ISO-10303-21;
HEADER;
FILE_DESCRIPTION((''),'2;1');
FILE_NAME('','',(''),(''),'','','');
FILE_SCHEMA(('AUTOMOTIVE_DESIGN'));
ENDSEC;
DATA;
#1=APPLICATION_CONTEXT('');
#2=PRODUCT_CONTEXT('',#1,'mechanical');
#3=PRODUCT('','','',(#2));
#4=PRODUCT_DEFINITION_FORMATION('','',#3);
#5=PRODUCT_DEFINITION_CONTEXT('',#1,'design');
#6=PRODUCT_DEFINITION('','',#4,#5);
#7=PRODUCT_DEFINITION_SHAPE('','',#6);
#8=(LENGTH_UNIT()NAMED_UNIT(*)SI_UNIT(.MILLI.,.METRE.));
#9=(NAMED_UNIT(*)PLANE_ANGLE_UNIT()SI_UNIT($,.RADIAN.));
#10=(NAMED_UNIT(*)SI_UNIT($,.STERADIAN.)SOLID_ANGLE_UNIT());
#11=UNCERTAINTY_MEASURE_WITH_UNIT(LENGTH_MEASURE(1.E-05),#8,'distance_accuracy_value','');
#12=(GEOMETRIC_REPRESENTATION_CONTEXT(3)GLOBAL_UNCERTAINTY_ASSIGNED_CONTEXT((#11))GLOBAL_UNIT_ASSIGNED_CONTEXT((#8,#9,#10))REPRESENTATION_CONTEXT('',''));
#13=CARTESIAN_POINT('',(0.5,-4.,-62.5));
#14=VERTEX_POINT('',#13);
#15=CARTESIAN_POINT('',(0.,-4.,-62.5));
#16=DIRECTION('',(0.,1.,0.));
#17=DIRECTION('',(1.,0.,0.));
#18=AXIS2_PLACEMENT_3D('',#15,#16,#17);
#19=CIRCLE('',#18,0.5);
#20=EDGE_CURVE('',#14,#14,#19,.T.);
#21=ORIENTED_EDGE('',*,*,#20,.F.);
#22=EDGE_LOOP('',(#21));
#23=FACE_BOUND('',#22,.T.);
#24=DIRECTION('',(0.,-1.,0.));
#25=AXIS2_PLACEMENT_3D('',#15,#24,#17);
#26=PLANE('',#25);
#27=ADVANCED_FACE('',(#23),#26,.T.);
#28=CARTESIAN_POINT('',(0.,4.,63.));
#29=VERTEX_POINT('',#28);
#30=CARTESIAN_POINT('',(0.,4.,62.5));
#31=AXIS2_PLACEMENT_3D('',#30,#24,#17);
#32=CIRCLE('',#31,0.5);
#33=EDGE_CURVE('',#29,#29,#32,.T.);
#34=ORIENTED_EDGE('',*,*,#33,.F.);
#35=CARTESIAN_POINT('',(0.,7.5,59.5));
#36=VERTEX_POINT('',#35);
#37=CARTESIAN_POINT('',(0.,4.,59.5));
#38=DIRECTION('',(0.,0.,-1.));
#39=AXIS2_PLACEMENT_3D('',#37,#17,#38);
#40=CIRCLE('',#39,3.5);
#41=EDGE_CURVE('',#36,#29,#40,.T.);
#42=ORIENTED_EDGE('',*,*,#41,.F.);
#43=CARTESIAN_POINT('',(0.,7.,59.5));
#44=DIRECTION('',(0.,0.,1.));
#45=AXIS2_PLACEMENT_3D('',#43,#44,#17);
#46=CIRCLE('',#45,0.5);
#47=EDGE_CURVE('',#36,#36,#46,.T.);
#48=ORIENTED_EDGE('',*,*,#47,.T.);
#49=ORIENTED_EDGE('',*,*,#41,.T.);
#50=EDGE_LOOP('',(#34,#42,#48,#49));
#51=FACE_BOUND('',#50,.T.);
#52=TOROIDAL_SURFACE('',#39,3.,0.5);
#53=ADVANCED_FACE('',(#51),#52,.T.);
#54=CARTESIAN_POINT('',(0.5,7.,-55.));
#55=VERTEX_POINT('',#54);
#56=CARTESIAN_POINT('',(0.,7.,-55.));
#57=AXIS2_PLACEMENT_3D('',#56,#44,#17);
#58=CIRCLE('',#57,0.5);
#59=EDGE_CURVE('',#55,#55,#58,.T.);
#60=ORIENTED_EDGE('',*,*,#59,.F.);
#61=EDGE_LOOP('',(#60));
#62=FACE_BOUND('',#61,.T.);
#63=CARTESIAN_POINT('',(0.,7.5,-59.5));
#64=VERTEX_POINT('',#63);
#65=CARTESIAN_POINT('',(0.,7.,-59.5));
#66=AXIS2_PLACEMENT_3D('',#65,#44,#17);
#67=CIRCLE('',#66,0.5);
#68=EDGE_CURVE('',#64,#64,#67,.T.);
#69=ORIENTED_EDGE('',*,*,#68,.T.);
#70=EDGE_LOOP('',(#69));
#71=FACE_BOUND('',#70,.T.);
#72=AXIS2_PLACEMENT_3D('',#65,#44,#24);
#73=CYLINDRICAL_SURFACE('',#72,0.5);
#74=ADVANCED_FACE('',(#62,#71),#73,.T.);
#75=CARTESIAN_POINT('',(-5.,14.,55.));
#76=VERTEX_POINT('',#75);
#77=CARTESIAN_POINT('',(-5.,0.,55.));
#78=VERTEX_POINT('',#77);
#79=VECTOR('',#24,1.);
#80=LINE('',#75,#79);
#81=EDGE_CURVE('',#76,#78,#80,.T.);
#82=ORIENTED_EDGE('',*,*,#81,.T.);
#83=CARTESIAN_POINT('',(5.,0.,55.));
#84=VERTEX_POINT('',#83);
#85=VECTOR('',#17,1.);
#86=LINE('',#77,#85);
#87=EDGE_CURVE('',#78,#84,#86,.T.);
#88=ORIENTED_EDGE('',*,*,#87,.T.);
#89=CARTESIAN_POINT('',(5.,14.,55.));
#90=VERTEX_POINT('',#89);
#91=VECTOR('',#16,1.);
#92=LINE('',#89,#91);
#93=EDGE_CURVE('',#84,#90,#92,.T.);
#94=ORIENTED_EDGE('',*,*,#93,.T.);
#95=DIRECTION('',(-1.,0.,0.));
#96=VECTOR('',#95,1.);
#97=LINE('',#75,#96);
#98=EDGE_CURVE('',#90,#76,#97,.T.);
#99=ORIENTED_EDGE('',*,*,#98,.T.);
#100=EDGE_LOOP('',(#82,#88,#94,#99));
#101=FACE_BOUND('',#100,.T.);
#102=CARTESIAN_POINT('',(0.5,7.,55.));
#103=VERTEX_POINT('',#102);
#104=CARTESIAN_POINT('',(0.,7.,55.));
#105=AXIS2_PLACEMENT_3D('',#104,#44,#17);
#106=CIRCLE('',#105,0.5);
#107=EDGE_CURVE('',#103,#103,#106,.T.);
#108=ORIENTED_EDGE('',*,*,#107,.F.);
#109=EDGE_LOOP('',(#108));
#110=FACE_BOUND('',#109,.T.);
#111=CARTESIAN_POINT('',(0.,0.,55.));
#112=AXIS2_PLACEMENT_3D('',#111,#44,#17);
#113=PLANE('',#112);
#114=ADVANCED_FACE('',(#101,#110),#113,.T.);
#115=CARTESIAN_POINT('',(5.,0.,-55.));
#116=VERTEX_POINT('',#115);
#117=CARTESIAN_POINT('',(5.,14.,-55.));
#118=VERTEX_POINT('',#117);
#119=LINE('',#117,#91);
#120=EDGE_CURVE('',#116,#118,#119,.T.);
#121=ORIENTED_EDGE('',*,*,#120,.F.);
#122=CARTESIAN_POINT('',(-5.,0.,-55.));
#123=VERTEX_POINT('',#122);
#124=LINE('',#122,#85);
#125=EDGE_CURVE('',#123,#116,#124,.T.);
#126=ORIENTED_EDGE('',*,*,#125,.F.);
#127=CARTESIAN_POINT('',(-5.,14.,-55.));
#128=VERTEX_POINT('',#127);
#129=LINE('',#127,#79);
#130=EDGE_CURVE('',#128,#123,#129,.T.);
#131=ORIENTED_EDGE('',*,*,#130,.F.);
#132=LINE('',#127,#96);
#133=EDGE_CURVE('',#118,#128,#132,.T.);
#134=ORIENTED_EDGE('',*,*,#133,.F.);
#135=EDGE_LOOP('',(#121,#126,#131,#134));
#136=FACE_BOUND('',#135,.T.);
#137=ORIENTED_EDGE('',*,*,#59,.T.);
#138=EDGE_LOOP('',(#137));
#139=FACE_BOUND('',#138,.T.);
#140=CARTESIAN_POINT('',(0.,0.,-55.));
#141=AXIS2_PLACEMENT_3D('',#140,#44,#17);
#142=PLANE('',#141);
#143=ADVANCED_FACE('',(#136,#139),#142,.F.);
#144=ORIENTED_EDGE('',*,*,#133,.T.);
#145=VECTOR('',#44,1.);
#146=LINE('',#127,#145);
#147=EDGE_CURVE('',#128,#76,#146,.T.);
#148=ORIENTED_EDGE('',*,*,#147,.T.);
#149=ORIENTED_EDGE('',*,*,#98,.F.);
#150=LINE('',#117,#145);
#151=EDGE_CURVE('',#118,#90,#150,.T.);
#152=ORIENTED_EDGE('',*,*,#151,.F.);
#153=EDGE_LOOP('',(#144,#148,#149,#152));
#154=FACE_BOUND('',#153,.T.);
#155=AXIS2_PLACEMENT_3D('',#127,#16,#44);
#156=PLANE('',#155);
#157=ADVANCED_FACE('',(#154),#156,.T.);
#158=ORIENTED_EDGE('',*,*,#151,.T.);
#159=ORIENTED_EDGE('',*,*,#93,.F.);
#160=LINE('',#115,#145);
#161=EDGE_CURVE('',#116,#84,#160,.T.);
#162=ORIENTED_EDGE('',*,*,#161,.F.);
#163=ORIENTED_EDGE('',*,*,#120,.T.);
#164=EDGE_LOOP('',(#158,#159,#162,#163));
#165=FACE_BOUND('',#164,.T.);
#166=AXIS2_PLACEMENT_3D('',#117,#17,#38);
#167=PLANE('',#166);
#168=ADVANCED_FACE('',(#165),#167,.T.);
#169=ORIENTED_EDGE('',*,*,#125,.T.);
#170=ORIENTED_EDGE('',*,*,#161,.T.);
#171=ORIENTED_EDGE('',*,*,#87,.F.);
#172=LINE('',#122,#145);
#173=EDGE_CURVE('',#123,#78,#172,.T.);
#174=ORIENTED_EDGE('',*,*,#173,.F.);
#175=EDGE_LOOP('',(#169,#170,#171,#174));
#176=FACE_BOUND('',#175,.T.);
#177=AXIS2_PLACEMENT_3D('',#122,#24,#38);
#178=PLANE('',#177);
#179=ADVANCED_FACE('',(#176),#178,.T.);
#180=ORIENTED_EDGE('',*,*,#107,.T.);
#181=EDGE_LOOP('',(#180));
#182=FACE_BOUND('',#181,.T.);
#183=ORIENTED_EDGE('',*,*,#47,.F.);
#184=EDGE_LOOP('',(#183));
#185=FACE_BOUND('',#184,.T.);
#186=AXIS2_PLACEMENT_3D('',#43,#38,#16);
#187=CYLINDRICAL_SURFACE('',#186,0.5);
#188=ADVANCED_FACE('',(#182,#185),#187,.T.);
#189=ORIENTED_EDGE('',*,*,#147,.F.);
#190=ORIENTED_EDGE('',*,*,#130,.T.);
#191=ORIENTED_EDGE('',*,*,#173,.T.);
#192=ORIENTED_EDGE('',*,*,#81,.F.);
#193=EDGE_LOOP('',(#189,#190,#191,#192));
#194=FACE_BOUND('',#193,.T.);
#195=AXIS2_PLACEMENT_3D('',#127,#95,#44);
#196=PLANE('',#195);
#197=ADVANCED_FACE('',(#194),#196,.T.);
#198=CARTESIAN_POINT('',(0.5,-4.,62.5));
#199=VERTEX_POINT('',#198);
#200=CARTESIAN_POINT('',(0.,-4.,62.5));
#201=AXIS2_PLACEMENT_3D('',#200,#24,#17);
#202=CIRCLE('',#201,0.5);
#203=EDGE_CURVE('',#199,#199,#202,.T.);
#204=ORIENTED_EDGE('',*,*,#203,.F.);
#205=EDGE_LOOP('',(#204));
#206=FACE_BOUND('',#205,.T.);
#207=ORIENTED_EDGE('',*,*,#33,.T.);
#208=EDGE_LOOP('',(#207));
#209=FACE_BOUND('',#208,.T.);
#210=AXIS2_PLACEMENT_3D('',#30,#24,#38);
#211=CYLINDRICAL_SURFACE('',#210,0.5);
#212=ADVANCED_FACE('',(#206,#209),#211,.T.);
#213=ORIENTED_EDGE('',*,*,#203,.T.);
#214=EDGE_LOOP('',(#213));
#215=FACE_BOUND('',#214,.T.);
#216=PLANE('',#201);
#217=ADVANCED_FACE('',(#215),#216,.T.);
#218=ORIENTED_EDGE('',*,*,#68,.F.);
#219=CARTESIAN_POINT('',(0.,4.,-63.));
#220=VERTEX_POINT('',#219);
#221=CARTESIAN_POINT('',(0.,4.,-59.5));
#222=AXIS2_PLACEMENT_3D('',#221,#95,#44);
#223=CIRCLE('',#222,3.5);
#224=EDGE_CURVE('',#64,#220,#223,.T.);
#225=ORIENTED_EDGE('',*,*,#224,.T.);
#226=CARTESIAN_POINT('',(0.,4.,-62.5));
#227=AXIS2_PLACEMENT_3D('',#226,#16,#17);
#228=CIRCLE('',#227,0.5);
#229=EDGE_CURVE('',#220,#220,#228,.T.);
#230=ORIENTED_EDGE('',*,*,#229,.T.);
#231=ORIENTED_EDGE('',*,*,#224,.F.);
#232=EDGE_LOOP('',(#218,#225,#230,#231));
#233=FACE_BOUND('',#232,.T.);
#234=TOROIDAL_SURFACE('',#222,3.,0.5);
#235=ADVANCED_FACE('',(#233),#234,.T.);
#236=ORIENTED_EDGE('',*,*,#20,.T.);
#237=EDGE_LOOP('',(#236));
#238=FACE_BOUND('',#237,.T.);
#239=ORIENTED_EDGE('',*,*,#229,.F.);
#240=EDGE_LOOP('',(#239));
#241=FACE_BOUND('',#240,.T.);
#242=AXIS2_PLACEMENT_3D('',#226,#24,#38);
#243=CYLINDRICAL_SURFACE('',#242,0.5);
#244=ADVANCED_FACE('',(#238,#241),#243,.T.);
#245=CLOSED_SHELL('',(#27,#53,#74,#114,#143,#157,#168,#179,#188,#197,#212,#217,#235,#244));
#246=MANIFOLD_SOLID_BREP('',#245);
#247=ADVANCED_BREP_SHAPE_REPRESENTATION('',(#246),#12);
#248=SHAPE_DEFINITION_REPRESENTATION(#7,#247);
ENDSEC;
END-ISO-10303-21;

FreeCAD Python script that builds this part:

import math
import FreeCAD as App
import Part
import Sketcher
from FreeCAD import Vector
Q = App.Units.Quantity

doc = App.newDocument("Part")
body = doc.addObject("PartDesign::Body", "Body")

sketch1 = doc.addObject("Sketcher::SketchObject", "Sketch")
body.addObject(sketch1)
sketch1.AttachmentSupport = (doc.XY_Plane, [""])
sketch1.MapMode = "FlatFace"
sketch1.addGeometry([
    Part.LineSegment(Vector(-5, 14, 0), Vector(-5, 0, 0)),
    Part.LineSegment(Vector(-5, 0, 0), Vector(5, 0, 0)),
    Part.LineSegment(Vector(5, 0, 0), Vector(5, 14, 0)),
    Part.LineSegment(Vector(5, 14, 0), Vector(-5, 14, 0)),
], False)
sketch1.addConstraint([
    Sketcher.Constraint("Coincident", 0, 2, 1, 1),
    Sketcher.Constraint("Coincident", 1, 2, 2, 1),
    Sketcher.Constraint("Coincident", 2, 2, 3, 1),
    Sketcher.Constraint("Coincident", 3, 2, 0, 1),
    Sketcher.Constraint("Vertical", 0),
    Sketcher.Constraint("Horizontal", 1),
    Sketcher.Constraint("Vertical", 2),
    Sketcher.Constraint("Horizontal", 3),
    Sketcher.Constraint("Symmetric", 0, 2, 1, 2, -1, 1),
    Sketcher.Constraint("DistanceX", 1, 1, 1, 2, Q("10 mm")),
    Sketcher.Constraint("DistanceY", 0, 2, 0, 1, Q("14 mm")),
])
pad1 = doc.addObject("PartDesign::Pad", "Pad")
body.addObject(pad1)
pad1.Profile = sketch1
pad1.Length = 110
pad1.Midplane = True

sketch2 = doc.addObject("Sketcher::SketchObject", "Sketch001")
body.addObject(sketch2)
sketch2.AttachmentSupport = (doc.XY_Plane, [""])
sketch2.MapMode = "FlatFace"
sketch2.AttachmentOffset = App.Placement(Vector(0, 0, 55), App.Rotation())
sketch2.addGeometry(Part.Circle(Vector(0, 7, 0), Vector(0, 0, 1), 0.5), False)
sketch2.addConstraint([
    Sketcher.Constraint("PointOnObject", 0, 3, -2),
    Sketcher.Constraint("Diameter", 0, Q("1 mm")),
    Sketcher.Constraint("DistanceY", -1, 1, 0, 3, Q("7 mm")),
])

sketch3 = doc.addObject("Sketcher::SketchObject", "Sketch002")
body.addObject(sketch3)
sketch3.AttachmentSupport = (doc.YZ_Plane, [""])
sketch3.MapMode = "FlatFace"
sketch3.addGeometry([
    Part.LineSegment(Vector(-4, 62.5, 0), Vector(4, 62.5, 0)),
    Part.ArcOfCircle(Part.Circle(Vector(4, 59.5, 0), Vector(0, 0, 1), 3), math.radians(0), math.radians(90)),
    Part.LineSegment(Vector(7, 59.5, 0), Vector(7, 55, 0)),
], False)
sketch3.addConstraint([
    Sketcher.Constraint("Tangent", 0, 2, 1, 2),
    Sketcher.Constraint("Tangent", 1, 1, 2, 1),
    Sketcher.Constraint("Horizontal", 0),
    Sketcher.Constraint("Vertical", 2),
    Sketcher.Constraint("Radius", 1, Q("3 mm")),
    Sketcher.Constraint("DistanceX", 0, 1, 0, 2, Q("8 mm")),
    Sketcher.Constraint("DistanceY", 2, 2, 2, 1, Q("4.5 mm")),
    Sketcher.Constraint("DistanceX", -1, 1, 1, 3, Q("4 mm")),
    Sketcher.Constraint("DistanceY", -1, 1, 2, 2, Q("55 mm")),
])
doc.recompute()

additivepipe = doc.addObject("PartDesign::AdditivePipe", "AdditivePipe")
body.addObject(additivepipe)
additivepipe.Profile = sketch2
additivepipe.Spine = (sketch3, ["Edge1", "Edge2", "Edge3"])
doc.recompute()

mirrored = doc.addObject("PartDesign::Mirrored", "Mirrored")
body.addObject(mirrored)
mirrored.Originals = [additivepipe]
mirrored.MirrorPlane = (doc.XY_Plane, [""])
body.Tip = mirrored

doc.recompute()
